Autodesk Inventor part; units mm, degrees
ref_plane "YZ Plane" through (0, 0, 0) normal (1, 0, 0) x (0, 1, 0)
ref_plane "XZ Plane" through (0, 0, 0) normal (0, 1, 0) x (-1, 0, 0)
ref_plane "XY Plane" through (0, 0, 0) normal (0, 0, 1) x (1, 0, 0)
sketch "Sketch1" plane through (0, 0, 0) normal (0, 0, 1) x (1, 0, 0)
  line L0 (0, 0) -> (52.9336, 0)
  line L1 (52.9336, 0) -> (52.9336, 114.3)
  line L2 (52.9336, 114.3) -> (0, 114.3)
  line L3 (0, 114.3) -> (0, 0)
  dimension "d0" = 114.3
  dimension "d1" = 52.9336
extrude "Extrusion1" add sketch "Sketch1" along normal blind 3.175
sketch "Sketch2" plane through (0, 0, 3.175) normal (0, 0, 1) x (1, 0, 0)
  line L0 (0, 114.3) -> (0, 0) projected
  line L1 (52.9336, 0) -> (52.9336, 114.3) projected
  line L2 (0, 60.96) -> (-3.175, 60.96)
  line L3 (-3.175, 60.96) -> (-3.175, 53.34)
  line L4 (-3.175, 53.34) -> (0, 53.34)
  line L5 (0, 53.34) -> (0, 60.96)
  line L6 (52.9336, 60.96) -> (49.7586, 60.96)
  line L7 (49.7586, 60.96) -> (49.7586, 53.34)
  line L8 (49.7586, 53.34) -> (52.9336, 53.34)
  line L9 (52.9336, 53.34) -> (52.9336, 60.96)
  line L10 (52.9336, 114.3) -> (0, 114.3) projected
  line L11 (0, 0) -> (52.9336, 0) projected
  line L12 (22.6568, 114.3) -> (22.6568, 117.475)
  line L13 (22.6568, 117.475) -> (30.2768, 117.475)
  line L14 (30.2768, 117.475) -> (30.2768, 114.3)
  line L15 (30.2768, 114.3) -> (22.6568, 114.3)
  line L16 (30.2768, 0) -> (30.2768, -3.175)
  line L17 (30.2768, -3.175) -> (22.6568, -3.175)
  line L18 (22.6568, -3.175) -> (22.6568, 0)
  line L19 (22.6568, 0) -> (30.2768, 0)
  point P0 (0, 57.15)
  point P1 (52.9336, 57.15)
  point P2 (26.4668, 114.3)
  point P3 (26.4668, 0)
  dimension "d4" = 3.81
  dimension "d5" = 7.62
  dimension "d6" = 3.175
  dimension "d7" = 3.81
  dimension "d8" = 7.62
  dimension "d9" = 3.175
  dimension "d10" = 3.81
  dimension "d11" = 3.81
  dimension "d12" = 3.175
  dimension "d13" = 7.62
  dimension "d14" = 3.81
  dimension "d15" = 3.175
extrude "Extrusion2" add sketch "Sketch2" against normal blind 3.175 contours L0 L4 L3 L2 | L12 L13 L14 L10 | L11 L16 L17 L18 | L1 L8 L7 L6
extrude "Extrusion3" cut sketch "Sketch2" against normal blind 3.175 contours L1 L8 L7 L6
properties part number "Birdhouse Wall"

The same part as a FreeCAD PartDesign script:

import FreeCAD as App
import Part
import Sketcher

V = App.Vector
Q = App.Units.Quantity


def add_polygon(sketch, points):
    """Adds a closed chain of lines whose ends are joined by coincident constraints."""
    first, n = sketch.GeometryCount, len(points)
    for a, b in zip(points, points[1:] + points[:1]):
        sketch.addGeometry(Part.LineSegment(App.Vector(*a, 0), App.Vector(*b, 0)), False)
    for i in range(n):
        sketch.addConstraint(Sketcher.Constraint("Coincident", first + i, 2, first + (i + 1) % n, 1))

doc = App.newDocument("Part")
body = doc.addObject("PartDesign::Body", "Body")

sketch1 = body.newObject("Sketcher::SketchObject", "Sketch")
sketch1.AttachmentSupport = (doc.getObject("XY_Plane"), [""])
sketch1.MapMode = "FlatFace"
add_polygon(sketch1, [(0, 114.3), (0, 0), (52.9336, 0), (52.9336, 114.3)])
sketch1.addConstraint([
    Sketcher.Constraint("Vertical", 0),
    Sketcher.Constraint("Horizontal", 1),
    Sketcher.Constraint("Vertical", 2),
    Sketcher.Constraint("Horizontal", 3),
    Sketcher.Constraint("Coincident", 0, 2, -1, 1),
    Sketcher.Constraint("DistanceY", 0, 2, 0, 1, Q("4.5 in")),
    Sketcher.Constraint("DistanceX", 1, 1, 1, 2, Q("2.084 in")),
])
pad1 = body.newObject("PartDesign::Pad", "Pad")
pad1.Profile = sketch1
pad1.Length = Q("0.125 in")

sketch2 = body.newObject("Sketcher::SketchObject", "Sketch001")
sketch2.AttachmentSupport = (doc.getObject("XY_Plane"), [""])
sketch2.MapMode = "FlatFace"
sketch2.AttachmentOffset = App.Placement(V(0, 0, 0.125 * 25.4), App.Rotation())
add_polygon(sketch2, [(0, 53.34), (0, 60.96), (-3.175, 60.96), (-3.175, 53.34)])
add_polygon(sketch2, [(22.6568, 117.475), (22.6568, 114.3), (30.2768, 114.3), (30.2768, 117.475)])
add_polygon(sketch2, [(30.2768, 0), (22.6568, 0), (22.6568, -3.175), (30.2768, -3.175)])
add_polygon(sketch2, [(52.9336, 53.34), (52.9336, 60.96), (49.7586, 60.96), (49.7586, 53.34)])
sketch2.addConstraint([
    Sketcher.Constraint("Vertical", 0),
    Sketcher.Constraint("Horizontal", 1),
    Sketcher.Constraint("Vertical", 2),
    Sketcher.Constraint("Horizontal", 3),
    Sketcher.Constraint("Vertical", 4),
    Sketcher.Constraint("Horizontal", 5),
    Sketcher.Constraint("Vertical", 6),
    Sketcher.Constraint("Horizontal", 7),
    Sketcher.Constraint("Horizontal", 8),
    Sketcher.Constraint("Vertical", 9),
    Sketcher.Constraint("Horizontal", 10),
    Sketcher.Constraint("Vertical", 11),
    Sketcher.Constraint("Vertical", 12),
    Sketcher.Constraint("Horizontal", 13),
    Sketcher.Constraint("Vertical", 14),
    Sketcher.Constraint("Horizontal", 15),
    Sketcher.Constraint("PointOnObject", 0, 2, -2),
    Sketcher.Constraint("PointOnObject", 8, 2, -1),
    Sketcher.Constraint("Horizontal", 1, 2, 12, 2),
    Sketcher.Constraint("Horizontal", 3, 2, 14, 2),
    Sketcher.Constraint("Vertical", 7, 2, 8, 2),
    Sketcher.Constraint("Vertical", 6, 2, 10, 2),
    Sketcher.Constraint("Equal", 3, 13),
    Sketcher.Constraint("Equal", 10, 0),
    Sketcher.Constraint("Equal", 15, 4),
    Sketcher.Constraint("Equal", 6, 9),
    Sketcher.Constraint("DistanceX", 5, 1, 5, 2, Q("0.3 in")),
    Sketcher.Constraint("DistanceX", 1, 2, 1, 1, Q("0.125 in")),
    Sketcher.Constraint("DistanceY", -1, 1, 0, 2, Q("2.4 in")),
    Sketcher.Constraint("DistanceY", -1, 1, 4, 2, Q("4.5 in")),
    Sketcher.Constraint("DistanceX", -1, 1, 4, 2, Q("0.892 in")),
    Sketcher.Constraint("DistanceX", -1, 1, 12, 2, Q("2.084 in")),
])
pad2 = body.newObject("PartDesign::Pad", "Pad001")
pad2.Profile = sketch2
pad2.Length = Q("0.125 in")
pad2.Reversed = True

sketch3 = body.newObject("Sketcher::SketchObject", "Sketch002")
sketch3.AttachmentSupport = (doc.getObject("XY_Plane"), [""])
sketch3.MapMode = "FlatFace"
sketch3.AttachmentOffset = App.Placement(V(0, 0, 0.125 * 25.4), App.Rotation())
add_polygon(sketch3, [(52.9336, 53.34), (52.9336, 60.96), (49.7586, 60.96), (49.7586, 53.34)])
sketch3.addConstraint([
    Sketcher.Constraint("Vertical", 0),
    Sketcher.Constraint("Horizontal", 1),
    Sketcher.Constraint("Vertical", 2),
    Sketcher.Constraint("Horizontal", 3),
    Sketcher.Constraint("DistanceY", 0, 1, 0, 2, Q("0.3 in")),
    Sketcher.Constraint("DistanceX", 1, 2, 1, 1, Q("0.125 in")),
    Sketcher.Constraint("DistanceY", -1, 1, 0, 2, Q("2.4 in")),
    Sketcher.Constraint("DistanceX", -1, 1, 0, 2, Q("2.084 in")),
])
pocket1 = body.newObject("PartDesign::Pocket", "Pocket")
pocket1.Profile = sketch3
pocket1.Length = Q("0.125 in")

doc.recompute()
